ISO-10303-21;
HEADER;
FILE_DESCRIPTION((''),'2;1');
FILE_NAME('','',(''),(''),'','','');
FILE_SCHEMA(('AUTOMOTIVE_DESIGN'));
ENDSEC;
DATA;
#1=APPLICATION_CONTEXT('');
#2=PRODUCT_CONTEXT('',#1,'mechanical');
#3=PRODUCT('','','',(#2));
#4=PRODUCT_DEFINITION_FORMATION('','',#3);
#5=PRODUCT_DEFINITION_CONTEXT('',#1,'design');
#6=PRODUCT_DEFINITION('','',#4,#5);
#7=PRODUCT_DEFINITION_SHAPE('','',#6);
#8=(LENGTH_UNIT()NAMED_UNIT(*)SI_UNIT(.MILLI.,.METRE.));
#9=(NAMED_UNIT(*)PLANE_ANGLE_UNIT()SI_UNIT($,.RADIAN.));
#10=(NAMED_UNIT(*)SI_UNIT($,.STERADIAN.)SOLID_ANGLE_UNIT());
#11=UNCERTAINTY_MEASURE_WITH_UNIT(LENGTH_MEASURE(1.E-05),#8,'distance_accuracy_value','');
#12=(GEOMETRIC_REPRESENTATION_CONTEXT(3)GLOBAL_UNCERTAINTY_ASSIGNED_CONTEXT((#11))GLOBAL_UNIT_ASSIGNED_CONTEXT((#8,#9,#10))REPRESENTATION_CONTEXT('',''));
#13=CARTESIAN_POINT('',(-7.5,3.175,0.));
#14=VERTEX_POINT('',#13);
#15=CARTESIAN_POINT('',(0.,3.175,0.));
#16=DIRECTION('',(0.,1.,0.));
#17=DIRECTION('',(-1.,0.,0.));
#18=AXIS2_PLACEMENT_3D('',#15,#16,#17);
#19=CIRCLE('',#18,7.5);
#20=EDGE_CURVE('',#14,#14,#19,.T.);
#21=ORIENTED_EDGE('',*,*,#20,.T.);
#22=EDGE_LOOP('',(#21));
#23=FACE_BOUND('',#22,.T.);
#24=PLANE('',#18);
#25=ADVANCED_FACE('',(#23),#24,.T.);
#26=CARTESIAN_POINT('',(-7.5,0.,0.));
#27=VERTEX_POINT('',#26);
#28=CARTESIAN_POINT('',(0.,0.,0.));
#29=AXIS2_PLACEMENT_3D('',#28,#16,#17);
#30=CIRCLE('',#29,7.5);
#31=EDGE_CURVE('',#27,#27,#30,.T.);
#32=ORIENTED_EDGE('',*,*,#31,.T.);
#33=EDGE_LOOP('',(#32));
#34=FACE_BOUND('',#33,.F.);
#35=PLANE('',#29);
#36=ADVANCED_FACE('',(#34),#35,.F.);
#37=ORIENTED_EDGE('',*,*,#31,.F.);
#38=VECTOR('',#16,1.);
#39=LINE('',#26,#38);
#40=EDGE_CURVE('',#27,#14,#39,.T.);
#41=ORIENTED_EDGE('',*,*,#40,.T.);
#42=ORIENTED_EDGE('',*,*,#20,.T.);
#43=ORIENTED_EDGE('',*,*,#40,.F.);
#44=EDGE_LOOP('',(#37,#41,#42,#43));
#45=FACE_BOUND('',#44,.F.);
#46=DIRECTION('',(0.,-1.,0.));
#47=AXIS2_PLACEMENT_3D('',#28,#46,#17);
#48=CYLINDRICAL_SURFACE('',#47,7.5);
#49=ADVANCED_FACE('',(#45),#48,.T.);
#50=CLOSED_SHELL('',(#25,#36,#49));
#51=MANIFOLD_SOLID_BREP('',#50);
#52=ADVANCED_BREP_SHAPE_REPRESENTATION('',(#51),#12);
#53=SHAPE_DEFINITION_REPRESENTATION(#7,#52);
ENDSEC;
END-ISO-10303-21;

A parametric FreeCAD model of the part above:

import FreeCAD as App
import Part
import Sketcher
from FreeCAD import Vector

doc = App.newDocument("Part")
body = doc.addObject("PartDesign::Body", "Body")

# Sketch on XZ plane
sketch1 = doc.addObject("Sketcher::SketchObject", "Sketch")
body.addObject(sketch1)
sketch1.AttachmentSupport = (doc.XZ_Plane, [""])
sketch1.MapMode = "FlatFace"
sketch1.addGeometry(Part.Circle(Vector(0, 0, 0), Vector(0, 0, 1), 8), False)
sketch1.addConstraint([
    Sketcher.Constraint("Coincident", 0, 3, -1, 1),
    Sketcher.Constraint("Diameter", 0, 15.0),
])
pad1 = doc.addObject("PartDesign::Pad", "Pad")
body.addObject(pad1)
pad1.Profile = sketch1
pad1.Length = 3.175
pad1.Reversed = True

doc.recompute()
